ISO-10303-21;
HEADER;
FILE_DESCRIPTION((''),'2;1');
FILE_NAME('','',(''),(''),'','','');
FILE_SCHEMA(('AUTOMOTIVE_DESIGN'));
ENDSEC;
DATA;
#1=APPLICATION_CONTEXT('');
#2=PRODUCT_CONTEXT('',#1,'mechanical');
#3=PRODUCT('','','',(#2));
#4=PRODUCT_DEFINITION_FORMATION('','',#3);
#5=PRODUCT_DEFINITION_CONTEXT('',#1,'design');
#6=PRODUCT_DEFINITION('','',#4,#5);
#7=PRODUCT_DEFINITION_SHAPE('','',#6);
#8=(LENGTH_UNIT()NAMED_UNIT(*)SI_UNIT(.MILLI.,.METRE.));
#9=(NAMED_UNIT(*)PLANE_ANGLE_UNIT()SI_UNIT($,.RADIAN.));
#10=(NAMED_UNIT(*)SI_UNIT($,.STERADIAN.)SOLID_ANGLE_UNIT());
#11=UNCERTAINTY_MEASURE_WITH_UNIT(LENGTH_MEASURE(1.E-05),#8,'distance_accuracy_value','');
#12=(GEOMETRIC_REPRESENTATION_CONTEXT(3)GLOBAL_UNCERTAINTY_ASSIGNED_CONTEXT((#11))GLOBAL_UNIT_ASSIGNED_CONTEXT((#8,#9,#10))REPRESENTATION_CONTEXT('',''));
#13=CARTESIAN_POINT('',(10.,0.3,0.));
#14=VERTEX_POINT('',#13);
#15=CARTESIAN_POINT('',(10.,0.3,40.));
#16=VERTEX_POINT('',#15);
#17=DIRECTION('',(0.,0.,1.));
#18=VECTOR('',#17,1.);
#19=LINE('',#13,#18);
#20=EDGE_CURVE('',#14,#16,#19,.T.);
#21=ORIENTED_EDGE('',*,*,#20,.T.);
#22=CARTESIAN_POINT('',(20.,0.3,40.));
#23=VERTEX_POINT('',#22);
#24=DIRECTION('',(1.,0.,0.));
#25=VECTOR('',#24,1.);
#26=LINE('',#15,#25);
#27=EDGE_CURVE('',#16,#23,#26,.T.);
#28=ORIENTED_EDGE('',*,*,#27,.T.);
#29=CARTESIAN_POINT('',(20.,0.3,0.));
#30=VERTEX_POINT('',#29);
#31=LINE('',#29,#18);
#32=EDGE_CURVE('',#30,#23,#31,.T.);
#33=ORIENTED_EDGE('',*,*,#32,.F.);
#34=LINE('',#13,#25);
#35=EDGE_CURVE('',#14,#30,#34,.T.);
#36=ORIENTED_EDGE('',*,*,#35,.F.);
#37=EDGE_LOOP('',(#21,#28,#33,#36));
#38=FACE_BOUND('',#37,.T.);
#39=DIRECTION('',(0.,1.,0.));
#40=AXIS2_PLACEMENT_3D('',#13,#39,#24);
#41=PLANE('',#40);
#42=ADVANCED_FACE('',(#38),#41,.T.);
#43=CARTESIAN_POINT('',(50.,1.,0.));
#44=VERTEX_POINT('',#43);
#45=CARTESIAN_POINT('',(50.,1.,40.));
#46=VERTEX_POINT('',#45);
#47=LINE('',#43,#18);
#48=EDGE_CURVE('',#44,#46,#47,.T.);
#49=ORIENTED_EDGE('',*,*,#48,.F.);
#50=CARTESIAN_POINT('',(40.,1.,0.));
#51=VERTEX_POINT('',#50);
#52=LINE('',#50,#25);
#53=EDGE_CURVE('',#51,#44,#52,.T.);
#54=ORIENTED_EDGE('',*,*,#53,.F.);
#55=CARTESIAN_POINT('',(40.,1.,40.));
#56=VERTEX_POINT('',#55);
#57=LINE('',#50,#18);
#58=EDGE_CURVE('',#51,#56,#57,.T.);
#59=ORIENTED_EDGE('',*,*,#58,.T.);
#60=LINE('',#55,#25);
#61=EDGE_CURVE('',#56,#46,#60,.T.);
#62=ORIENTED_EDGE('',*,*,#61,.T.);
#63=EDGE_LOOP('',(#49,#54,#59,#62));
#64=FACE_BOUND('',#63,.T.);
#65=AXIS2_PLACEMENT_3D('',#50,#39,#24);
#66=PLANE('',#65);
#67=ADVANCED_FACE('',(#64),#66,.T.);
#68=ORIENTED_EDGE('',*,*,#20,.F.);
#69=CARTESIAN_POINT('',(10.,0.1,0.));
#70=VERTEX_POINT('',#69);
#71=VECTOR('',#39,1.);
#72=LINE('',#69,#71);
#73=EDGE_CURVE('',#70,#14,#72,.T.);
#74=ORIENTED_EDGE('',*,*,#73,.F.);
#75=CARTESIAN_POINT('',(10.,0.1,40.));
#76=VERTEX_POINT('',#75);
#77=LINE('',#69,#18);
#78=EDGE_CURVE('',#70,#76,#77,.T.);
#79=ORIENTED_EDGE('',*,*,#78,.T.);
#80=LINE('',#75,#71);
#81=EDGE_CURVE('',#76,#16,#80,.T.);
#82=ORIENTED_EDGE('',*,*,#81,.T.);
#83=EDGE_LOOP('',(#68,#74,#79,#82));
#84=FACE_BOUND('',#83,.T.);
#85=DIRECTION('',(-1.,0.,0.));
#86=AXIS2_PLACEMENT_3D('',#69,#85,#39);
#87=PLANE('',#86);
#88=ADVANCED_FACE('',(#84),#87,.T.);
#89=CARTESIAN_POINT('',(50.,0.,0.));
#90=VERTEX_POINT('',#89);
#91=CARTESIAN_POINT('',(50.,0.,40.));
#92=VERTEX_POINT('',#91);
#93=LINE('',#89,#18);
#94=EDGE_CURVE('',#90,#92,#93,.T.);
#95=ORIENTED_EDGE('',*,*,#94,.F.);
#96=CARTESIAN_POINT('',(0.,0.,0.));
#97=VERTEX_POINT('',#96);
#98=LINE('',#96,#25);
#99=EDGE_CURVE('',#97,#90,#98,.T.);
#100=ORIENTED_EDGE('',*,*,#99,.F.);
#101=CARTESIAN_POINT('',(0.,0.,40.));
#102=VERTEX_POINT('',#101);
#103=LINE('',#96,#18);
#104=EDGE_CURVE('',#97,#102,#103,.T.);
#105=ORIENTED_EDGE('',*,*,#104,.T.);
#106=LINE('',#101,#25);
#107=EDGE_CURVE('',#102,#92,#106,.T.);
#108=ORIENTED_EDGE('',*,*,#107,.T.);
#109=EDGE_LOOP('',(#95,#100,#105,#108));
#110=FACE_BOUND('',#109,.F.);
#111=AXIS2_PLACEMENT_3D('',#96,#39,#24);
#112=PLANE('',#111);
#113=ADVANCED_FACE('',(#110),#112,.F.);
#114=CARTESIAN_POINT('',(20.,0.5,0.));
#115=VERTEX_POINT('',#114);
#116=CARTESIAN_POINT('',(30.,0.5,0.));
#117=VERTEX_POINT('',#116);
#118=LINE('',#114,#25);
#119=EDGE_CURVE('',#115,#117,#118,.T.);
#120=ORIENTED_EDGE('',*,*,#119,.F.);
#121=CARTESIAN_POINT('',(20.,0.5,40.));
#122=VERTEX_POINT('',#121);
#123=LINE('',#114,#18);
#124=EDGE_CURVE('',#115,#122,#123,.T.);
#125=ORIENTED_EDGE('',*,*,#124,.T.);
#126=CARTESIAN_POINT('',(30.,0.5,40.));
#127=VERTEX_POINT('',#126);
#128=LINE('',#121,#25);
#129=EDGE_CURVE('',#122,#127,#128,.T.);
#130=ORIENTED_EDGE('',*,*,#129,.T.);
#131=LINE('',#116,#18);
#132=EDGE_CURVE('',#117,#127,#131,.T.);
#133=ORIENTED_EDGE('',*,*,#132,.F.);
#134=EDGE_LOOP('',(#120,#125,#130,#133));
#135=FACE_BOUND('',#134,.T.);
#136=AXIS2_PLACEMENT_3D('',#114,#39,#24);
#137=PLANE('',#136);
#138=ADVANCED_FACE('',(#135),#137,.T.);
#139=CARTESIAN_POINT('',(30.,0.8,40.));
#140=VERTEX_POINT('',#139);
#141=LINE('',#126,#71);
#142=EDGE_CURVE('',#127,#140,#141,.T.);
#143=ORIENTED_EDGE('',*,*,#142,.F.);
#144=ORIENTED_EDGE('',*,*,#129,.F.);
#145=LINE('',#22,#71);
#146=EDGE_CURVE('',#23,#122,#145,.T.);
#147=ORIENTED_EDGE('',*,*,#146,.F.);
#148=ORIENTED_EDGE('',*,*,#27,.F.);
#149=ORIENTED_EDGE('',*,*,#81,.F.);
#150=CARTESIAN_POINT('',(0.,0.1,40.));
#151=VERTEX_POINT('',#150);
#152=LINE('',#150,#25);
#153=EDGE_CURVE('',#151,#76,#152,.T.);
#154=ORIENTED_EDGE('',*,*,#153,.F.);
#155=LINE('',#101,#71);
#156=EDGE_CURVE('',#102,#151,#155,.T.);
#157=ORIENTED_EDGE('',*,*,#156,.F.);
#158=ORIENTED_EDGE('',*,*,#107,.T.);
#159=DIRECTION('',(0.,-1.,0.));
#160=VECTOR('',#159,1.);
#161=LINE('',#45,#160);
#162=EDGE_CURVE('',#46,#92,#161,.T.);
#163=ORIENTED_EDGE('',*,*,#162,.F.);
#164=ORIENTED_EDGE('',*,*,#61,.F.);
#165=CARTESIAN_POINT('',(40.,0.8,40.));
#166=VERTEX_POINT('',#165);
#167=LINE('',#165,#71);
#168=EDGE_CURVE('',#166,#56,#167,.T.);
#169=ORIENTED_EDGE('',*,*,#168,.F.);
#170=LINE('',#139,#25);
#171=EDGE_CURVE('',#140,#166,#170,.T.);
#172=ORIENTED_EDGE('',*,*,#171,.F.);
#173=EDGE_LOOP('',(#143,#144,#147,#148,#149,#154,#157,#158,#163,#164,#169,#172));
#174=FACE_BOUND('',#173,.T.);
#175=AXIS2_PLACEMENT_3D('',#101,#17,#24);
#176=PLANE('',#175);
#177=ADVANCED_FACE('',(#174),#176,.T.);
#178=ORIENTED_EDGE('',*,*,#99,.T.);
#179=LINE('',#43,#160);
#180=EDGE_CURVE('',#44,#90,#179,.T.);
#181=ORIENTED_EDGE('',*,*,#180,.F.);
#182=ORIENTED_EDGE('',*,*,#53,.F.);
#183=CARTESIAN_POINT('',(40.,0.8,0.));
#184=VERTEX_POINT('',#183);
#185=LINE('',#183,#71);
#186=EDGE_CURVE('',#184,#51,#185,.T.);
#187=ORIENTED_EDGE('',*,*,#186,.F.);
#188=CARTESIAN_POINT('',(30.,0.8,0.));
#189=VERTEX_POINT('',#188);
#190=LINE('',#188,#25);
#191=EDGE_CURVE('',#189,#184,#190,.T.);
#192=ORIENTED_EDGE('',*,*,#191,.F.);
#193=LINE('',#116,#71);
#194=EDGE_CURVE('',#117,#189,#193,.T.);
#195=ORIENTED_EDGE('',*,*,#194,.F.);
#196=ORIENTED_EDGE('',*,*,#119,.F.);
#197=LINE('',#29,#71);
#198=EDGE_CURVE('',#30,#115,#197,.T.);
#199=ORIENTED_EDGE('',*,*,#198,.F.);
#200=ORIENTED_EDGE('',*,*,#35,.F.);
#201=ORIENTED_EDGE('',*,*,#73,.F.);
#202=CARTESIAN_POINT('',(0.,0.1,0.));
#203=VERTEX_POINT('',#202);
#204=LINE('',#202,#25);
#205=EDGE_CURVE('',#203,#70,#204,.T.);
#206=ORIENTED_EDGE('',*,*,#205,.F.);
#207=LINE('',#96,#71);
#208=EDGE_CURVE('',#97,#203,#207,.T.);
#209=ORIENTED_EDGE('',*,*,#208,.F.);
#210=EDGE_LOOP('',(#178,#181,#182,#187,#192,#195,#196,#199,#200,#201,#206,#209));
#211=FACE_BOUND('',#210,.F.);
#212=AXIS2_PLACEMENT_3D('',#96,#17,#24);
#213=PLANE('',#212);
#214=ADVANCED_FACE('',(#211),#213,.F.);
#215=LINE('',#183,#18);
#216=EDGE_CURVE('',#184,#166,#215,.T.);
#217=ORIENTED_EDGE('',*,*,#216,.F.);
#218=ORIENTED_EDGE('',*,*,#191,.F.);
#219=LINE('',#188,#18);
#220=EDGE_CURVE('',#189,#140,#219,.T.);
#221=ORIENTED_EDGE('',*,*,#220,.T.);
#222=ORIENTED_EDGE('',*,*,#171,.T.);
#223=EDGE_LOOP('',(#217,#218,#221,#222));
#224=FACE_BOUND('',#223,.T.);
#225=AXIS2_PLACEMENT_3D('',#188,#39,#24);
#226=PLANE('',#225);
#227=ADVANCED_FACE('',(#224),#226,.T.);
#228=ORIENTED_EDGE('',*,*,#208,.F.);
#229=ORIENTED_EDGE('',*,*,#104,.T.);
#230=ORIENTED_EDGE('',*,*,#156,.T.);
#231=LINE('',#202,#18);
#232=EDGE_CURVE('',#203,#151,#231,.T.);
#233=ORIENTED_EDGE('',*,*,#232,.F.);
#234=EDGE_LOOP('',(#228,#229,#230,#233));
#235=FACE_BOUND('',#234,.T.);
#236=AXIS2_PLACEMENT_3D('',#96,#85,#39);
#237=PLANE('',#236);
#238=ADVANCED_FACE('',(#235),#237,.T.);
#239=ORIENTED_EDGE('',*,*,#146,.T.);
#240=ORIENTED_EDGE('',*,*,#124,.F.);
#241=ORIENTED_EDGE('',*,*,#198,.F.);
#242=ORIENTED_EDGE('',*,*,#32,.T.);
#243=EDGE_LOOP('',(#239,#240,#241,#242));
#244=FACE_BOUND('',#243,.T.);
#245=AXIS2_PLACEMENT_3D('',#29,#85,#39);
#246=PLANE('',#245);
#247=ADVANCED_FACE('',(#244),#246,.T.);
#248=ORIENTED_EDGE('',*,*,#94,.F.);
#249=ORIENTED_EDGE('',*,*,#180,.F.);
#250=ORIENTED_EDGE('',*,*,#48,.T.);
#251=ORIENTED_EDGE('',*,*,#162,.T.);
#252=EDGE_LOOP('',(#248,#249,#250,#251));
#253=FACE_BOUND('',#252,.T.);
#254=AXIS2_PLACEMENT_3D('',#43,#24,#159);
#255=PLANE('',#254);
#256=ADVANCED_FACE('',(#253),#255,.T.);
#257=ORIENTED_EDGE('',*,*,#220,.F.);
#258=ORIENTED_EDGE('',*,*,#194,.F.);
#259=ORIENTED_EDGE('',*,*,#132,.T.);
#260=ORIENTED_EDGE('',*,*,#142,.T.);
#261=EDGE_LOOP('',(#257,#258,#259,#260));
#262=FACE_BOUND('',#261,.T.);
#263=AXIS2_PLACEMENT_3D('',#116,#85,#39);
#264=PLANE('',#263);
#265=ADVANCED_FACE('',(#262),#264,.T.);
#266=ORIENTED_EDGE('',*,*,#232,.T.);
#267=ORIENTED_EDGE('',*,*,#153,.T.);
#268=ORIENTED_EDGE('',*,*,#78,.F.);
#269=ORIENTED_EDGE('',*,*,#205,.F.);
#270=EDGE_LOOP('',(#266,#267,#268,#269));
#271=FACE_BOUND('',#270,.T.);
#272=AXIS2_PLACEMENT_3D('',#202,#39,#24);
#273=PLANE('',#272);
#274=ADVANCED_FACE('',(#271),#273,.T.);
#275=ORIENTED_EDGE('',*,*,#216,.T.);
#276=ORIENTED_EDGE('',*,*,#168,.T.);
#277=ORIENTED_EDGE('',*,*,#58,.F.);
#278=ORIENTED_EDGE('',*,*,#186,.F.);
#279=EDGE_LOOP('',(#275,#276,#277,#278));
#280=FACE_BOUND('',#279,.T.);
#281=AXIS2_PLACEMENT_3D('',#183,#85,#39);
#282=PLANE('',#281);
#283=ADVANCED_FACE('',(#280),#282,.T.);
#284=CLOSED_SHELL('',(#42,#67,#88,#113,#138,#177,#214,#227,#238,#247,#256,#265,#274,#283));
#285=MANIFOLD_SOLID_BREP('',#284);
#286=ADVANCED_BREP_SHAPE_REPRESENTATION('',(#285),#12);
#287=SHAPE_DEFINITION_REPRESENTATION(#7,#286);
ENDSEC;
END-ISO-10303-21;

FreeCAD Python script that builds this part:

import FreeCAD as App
import Part
import Sketcher
from FreeCAD import Vector
Q = App.Units.Quantity

doc = App.newDocument("Part")
body = doc.addObject("PartDesign::Body", "Body")

# Sketch on XY plane
sketch1 = body.newObject("Sketcher::SketchObject", "Sketch")
sketch1.AttachmentSupport = (doc.getObject("XY_Plane"), [""])
sketch1.MapMode = "FlatFace"
sketch1.addGeometry(Part.LineSegment(Vector(0, 0.1, 0), Vector(0, 0, 0)), False)
sketch1.addGeometry(Part.LineSegment(Vector(0, 0, 0), Vector(50, 0, 0)), False)
sketch1.addGeometry(Part.LineSegment(Vector(50, 0, 0), Vector(50, 1, 0)), False)
sketch1.addGeometry(Part.LineSegment(Vector(50, 1, 0), Vector(40, 1, 0)), False)
sketch1.addGeometry(Part.LineSegment(Vector(40, 1, 0), Vector(40, 0.8, 0)), False)
sketch1.addGeometry(Part.LineSegment(Vector(40, 0.8, 0), Vector(30, 0.8, 0)), False)
sketch1.addGeometry(Part.LineSegment(Vector(30, 0.8, 0), Vector(30, 0.5, 0)), False)
sketch1.addGeometry(Part.LineSegment(Vector(30, 0.5, 0), Vector(20, 0.5, 0)), False)
sketch1.addGeometry(Part.LineSegment(Vector(20, 0.5, 0), Vector(20, 0.3, 0)), False)
sketch1.addGeometry(Part.LineSegment(Vector(20, 0.3, 0), Vector(10, 0.3, 0)), False)
sketch1.addGeometry(Part.LineSegment(Vector(10, 0.3, 0), Vector(10, 0.1, 0)), False)
sketch1.addGeometry(Part.LineSegment(Vector(10, 0.1, 0), Vector(0, 0.1, 0)), False)
sketch1.addConstraint(Sketcher.Constraint("Coincident", 0, 2, 1, 1))
sketch1.addConstraint(Sketcher.Constraint("Coincident", 1, 2, 2, 1))
sketch1.addConstraint(Sketcher.Constraint("Coincident", 2, 2, 3, 1))
sketch1.addConstraint(Sketcher.Constraint("Coincident", 3, 2, 4, 1))
sketch1.addConstraint(Sketcher.Constraint("Coincident", 4, 2, 5, 1))
sketch1.addConstraint(Sketcher.Constraint("Coincident", 5, 2, 6, 1))
sketch1.addConstraint(Sketcher.Constraint("Coincident", 6, 2, 7, 1))
sketch1.addConstraint(Sketcher.Constraint("Coincident", 7, 2, 8, 1))
sketch1.addConstraint(Sketcher.Constraint("Coincident", 8, 2, 9, 1))
sketch1.addConstraint(Sketcher.Constraint("Coincident", 9, 2, 10, 1))
sketch1.addConstraint(Sketcher.Constraint("Coincident", 10, 2, 11, 1))
sketch1.addConstraint(Sketcher.Constraint("Coincident", 11, 2, 0, 1))
sketch1.addConstraint(Sketcher.Constraint("Vertical", 0))
sketch1.addConstraint(Sketcher.Constraint("Horizontal", 1))
sketch1.addConstraint(Sketcher.Constraint("Vertical", 2))
sketch1.addConstraint(Sketcher.Constraint("Horizontal", 3))
sketch1.addConstraint(Sketcher.Constraint("Vertical", 4))
sketch1.addConstraint(Sketcher.Constraint("Horizontal", 5))
sketch1.addConstraint(Sketcher.Constraint("Vertical", 6))
sketch1.addConstraint(Sketcher.Constraint("Horizontal", 7))
sketch1.addConstraint(Sketcher.Constraint("Vertical", 8))
sketch1.addConstraint(Sketcher.Constraint("Horizontal", 9))
sketch1.addConstraint(Sketcher.Constraint("Vertical", 10))
sketch1.addConstraint(Sketcher.Constraint("Horizontal", 11))
sketch1.addConstraint(Sketcher.Constraint("Coincident", 0, 2, -1, 1))
sketch1.addConstraint(Sketcher.Constraint("Equal", 3, 5))
sketch1.addConstraint(Sketcher.Constraint("Equal", 5, 7))
sketch1.addConstraint(Sketcher.Constraint("Equal", 7, 9))
sketch1.addConstraint(Sketcher.Constraint("Equal", 9, 11))
sketch1.addConstraint(Sketcher.Constraint("Equal", 4, 8))
sketch1.addConstraint(Sketcher.Constraint("Equal", 8, 10))
sketch1.addConstraint(Sketcher.Constraint("DistanceX", 3, 2, 3, 1, Q("10 mm")))
sketch1.addConstraint(Sketcher.Constraint("DistanceY", 0, 2, 0, 1, Q("0.1 mm")))
sketch1.addConstraint(Sketcher.Constraint("DistanceY", 4, 2, 4, 1, Q("0.2 mm")))
sketch1.addConstraint(Sketcher.Constraint("DistanceY", 6, 2, 6, 1, Q("0.3 mm")))
pad1 = body.newObject("PartDesign::Pad", "Pad")
pad1.Profile = sketch1
pad1.Length = 40

doc.recompute()
